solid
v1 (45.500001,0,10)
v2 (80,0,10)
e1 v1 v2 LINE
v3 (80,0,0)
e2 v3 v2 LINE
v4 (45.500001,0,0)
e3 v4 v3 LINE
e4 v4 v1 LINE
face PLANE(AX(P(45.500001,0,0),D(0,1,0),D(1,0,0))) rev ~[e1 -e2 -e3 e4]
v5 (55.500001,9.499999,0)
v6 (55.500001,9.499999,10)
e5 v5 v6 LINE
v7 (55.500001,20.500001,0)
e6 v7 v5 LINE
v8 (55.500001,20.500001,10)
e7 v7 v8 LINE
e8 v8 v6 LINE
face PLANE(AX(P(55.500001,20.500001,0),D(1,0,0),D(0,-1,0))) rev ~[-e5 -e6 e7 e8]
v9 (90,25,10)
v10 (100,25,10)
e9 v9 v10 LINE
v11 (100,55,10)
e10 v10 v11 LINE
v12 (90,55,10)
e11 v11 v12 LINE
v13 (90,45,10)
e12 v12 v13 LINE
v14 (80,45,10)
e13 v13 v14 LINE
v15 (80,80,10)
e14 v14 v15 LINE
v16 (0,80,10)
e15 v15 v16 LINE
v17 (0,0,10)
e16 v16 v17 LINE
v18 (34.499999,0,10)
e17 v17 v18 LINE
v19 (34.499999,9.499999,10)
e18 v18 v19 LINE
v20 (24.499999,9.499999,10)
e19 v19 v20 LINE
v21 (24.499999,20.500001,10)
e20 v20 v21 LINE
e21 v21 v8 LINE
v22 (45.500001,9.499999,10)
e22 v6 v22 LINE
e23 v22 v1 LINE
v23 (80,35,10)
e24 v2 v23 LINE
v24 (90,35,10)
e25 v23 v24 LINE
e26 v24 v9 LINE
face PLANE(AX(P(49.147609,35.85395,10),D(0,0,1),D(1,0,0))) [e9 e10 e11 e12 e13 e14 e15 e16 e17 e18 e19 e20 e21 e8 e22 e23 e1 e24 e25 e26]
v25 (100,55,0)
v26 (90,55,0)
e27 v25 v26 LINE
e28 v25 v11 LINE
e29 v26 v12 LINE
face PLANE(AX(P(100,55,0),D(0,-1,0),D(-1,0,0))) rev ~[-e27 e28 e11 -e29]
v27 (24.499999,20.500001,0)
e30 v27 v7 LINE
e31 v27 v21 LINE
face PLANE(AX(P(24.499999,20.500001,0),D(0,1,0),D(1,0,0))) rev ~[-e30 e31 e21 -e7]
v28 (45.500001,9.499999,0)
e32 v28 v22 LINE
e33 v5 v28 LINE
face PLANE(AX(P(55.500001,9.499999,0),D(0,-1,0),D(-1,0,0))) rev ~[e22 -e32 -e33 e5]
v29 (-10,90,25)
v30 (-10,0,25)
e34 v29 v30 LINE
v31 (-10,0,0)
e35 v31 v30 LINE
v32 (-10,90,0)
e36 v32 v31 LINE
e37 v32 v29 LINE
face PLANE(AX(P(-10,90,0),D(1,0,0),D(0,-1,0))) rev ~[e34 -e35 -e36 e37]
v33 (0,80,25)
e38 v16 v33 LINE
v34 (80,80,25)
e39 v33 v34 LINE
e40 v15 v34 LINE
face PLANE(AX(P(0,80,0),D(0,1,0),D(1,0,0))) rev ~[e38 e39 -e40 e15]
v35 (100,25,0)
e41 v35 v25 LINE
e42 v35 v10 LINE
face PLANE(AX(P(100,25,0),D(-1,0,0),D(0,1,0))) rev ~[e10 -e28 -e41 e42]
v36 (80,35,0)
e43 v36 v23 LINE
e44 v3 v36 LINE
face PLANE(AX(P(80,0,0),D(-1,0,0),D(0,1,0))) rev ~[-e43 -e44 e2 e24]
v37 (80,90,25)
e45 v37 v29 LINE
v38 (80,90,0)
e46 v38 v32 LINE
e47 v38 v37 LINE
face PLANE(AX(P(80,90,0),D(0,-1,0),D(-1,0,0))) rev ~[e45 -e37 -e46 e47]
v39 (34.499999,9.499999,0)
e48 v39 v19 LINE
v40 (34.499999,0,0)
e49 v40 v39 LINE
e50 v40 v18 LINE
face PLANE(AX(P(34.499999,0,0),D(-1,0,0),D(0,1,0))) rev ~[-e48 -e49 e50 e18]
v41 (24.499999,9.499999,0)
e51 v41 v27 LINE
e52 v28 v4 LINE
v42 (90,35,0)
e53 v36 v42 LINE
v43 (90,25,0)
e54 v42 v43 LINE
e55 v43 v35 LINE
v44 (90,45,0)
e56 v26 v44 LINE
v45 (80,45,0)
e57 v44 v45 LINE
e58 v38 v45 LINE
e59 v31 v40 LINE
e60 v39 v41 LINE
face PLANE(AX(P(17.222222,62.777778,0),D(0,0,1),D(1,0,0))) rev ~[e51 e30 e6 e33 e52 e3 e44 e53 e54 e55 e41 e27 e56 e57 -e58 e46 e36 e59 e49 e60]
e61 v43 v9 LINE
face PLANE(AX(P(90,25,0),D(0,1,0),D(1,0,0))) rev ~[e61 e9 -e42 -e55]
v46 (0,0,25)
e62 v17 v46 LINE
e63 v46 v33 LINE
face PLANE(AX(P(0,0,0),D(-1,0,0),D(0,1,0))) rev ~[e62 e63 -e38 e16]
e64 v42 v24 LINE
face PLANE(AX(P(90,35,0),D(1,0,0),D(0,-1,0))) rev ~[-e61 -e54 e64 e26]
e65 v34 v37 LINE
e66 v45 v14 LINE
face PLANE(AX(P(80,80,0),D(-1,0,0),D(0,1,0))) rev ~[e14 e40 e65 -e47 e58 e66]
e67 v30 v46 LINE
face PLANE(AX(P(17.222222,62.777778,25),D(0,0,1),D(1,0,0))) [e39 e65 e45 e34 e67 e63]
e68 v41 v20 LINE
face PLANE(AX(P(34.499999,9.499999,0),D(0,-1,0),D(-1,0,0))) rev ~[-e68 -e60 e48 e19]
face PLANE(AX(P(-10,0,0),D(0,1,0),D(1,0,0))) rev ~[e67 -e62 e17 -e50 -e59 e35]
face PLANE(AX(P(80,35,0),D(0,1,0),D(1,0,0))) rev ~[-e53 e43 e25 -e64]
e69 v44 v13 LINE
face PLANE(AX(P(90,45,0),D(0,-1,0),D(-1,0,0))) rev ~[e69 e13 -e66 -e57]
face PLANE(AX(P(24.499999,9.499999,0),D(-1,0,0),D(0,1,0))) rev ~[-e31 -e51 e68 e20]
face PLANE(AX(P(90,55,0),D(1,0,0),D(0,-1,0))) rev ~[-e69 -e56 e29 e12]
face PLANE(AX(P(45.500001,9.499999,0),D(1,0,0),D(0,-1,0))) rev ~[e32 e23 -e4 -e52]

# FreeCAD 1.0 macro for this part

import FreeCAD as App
import Part
import Sketcher


def add_polygon(sketch, points):
    """Adds a closed chain of lines whose ends are joined by coincident constraints."""
    first, n = sketch.GeometryCount, len(points)
    for a, b in zip(points, points[1:] + points[:1]):
        sketch.addGeometry(Part.LineSegment(App.Vector(*a, 0), App.Vector(*b, 0)), False)
    for i in range(n):
        sketch.addConstraint(Sketcher.Constraint("Coincident", first + i, 2, first + (i + 1) % n, 1))

doc = App.newDocument("Part")
params = doc.addObject("Spreadsheet::Sheet", "Params")
for row, (alias, value) in enumerate([
    ("sketch1_width", "10 mm"),
    ("sketch1_width2", "31.000002 mm"),
    ("sketch1_width3", "80 mm"),
    ("sketch1_height", "35 mm"),
    ("sketch1_height2", "9.499999 mm"),
    ("pad1_length", "10 mm"),
    ("sketch2_width", "10 mm"),
    ("sketch2_width2", "80 mm"),
    ("pad2_length", "25 mm"),
], start=1):
    params.set(f"A{row}", alias)
    params.set(f"B{row}", "=" + value)
    params.setAlias(f"B{row}", alias)

body = doc.addObject("PartDesign::Body", "Body")

sketch1 = body.newObject("Sketcher::SketchObject", "Sketch")
sketch1.AttachmentSupport = (doc.getObject("XY_Plane"), [""])
sketch1.MapMode = "FlatFace"
add_polygon(sketch1, [(0, 80), (0, 0), (34.499999, 0), (34.499999, 9.499999), (24.499999, 9.499999), (24.499999, 20.500001), (55.500001, 20.500001), (55.500001, 9.499999), (45.500001, 9.499999), (45.500001, 0), (80, 0), (80, 35), (90, 35), (90, 25), (100, 25), (100, 55), (90, 55), (90, 45), (80, 45), (80, 80)])
sketch1.addConstraint([
    Sketcher.Constraint("Vertical", 0),
    Sketcher.Constraint("Horizontal", 1),
    Sketcher.Constraint("Vertical", 2),
    Sketcher.Constraint("Horizontal", 3),
    Sketcher.Constraint("Vertical", 4),
    Sketcher.Constraint("Horizontal", 5),
    Sketcher.Constraint("Vertical", 6),
    Sketcher.Constraint("Horizontal", 7),
    Sketcher.Constraint("Vertical", 8),
    Sketcher.Constraint("Horizontal", 9),
    Sketcher.Constraint("Vertical", 10),
    Sketcher.Constraint("Horizontal", 11),
    Sketcher.Constraint("Vertical", 12),
    Sketcher.Constraint("Horizontal", 13),
    Sketcher.Constraint("Vertical", 14),
    Sketcher.Constraint("Horizontal", 15),
    Sketcher.Constraint("Vertical", 16),
    Sketcher.Constraint("Horizontal", 17),
    Sketcher.Constraint("Vertical", 18),
    Sketcher.Constraint("Horizontal", 19),
    Sketcher.Constraint("Coincident", 0, 2, -1, 1),
    Sketcher.Constraint("PointOnObject", 8, 2, -1),
    Sketcher.Constraint("Horizontal", 3, 2, 6, 2),
    Sketcher.Constraint("Vertical", 12, 2, 15, 2),
    Sketcher.Constraint("Vertical", 10, 2, 17, 2),
    Sketcher.Constraint("Equal", 3, 7),
    Sketcher.Constraint("Equal", 1, 9),
    Sketcher.Constraint("Equal", 7, 11),
    Sketcher.Constraint("Equal", 11, 13),
    Sketcher.Constraint("Equal", 19, 0),
    Sketcher.Constraint("Equal", 17, 12),
    Sketcher.Constraint("Equal", 12, 16),
    Sketcher.Constraint("Equal", 10, 18),
    Sketcher.Constraint("DistanceX", 3, 2, 3, 1, 10.0),
    Sketcher.Constraint("DistanceX", 5, 1, 5, 2, 31.000002),
    Sketcher.Constraint("DistanceX", 19, 2, 19, 1, 80.0),
    Sketcher.Constraint("DistanceY", 10, 1, 10, 2, 35.0),
    Sketcher.Constraint("DistanceY", 2, 1, 2, 2, 9.499999),
    Sketcher.Constraint("DistanceY", -1, 1, 4, 2, 20.500001),
])
sketch1.setExpression("Constraints[53]", "Params.sketch1_width")
sketch1.setExpression("Constraints[54]", "Params.sketch1_width2")
sketch1.setExpression("Constraints[55]", "Params.sketch1_width3")
sketch1.setExpression("Constraints[56]", "Params.sketch1_height")
sketch1.setExpression("Constraints[57]", "Params.sketch1_height2")
pad1 = body.newObject("PartDesign::Pad", "Pad")
pad1.Profile = sketch1
pad1.setExpression("Length", "Params.pad1_length")

sketch2 = body.newObject("Sketcher::SketchObject", "Sketch001")
sketch2.AttachmentSupport = (doc.getObject("XY_Plane"), [""])
sketch2.MapMode = "FlatFace"
add_polygon(sketch2, [(-10, 0), (0, 0), (0, 80), (80, 80), (80, 90), (-10, 90)])
sketch2.addConstraint([
    Sketcher.Constraint("Horizontal", 0),
    Sketcher.Constraint("Vertical", 1),
    Sketcher.Constraint("Horizontal", 2),
    Sketcher.Constraint("Vertical", 3),
    Sketcher.Constraint("Horizontal", 4),
    Sketcher.Constraint("Vertical", 5),
    Sketcher.Constraint("Coincident", 0, 2, -1, 1),
    Sketcher.Constraint("Equal", 2, 1),
    Sketcher.Constraint("Equal", 0, 3),
    Sketcher.Constraint("DistanceX", 0, 1, 0, 2, 10.0),
    Sketcher.Constraint("DistanceX", 2, 1, 2, 2, 80.0),
])
sketch2.setExpression("Constraints[15]", "Params.sketch2_width")
sketch2.setExpression("Constraints[16]", "Params.sketch2_width2")
pad2 = body.newObject("PartDesign::Pad", "Pad001")
pad2.Profile = sketch2
pad2.setExpression("Length", "Params.pad2_length")

doc.recompute()
